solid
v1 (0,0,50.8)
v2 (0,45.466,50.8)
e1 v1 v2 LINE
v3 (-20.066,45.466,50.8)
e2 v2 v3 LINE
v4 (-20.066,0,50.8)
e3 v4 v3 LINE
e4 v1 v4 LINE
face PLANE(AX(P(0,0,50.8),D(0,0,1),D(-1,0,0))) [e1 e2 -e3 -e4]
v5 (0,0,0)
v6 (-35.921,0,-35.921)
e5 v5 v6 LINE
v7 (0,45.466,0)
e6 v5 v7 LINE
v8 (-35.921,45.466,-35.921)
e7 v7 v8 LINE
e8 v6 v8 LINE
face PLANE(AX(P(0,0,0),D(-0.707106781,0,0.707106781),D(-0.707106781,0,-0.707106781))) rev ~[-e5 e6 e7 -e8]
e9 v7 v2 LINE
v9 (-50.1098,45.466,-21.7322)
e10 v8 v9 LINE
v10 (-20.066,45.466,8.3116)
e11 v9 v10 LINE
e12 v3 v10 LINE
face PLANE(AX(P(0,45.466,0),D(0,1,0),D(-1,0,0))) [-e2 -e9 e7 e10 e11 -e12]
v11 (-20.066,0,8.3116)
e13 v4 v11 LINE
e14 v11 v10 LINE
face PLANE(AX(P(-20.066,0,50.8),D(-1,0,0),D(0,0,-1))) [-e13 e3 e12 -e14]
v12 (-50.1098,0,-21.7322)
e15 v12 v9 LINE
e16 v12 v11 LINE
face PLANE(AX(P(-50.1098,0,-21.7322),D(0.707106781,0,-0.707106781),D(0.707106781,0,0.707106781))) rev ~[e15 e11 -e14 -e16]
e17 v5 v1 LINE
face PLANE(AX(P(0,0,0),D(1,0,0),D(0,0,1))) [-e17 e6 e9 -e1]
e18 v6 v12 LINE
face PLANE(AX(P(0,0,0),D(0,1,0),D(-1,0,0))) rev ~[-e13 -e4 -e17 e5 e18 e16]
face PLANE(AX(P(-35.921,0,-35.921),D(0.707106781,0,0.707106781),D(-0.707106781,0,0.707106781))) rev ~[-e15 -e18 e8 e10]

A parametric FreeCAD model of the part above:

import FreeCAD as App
import Part
import Sketcher

V = App.Vector
Q = App.Units.Quantity


def add_polygon(sketch, points):
    """Adds a closed chain of lines whose ends are joined by coincident constraints."""
    first, n = sketch.GeometryCount, len(points)
    for a, b in zip(points, points[1:] + points[:1]):
        sketch.addGeometry(Part.LineSegment(App.Vector(*a, 0), App.Vector(*b, 0)), False)
    for i in range(n):
        sketch.addConstraint(Sketcher.Constraint("Coincident", first + i, 2, first + (i + 1) % n, 1))

doc = App.newDocument("Part")
body = doc.addObject("PartDesign::Body", "Body")

# Sketch on XZ plane
sketch1 = body.newObject("Sketcher::SketchObject", "Sketch")
sketch1.AttachmentSupport = (doc.getObject("XZ_Plane"), [""])
sketch1.MapMode = "FlatFace"
add_polygon(sketch1, [(0, 51), (0, 0), (-36, -36), (-50, -22), (-20, 8), (-20, 51)])  # lines 0-5
sketch1.addConstraint(Sketcher.Constraint("Vertical", 0))
sketch1.addConstraint(Sketcher.Constraint("Vertical", 4))
sketch1.addConstraint(Sketcher.Constraint("Horizontal", 5))
sketch1.addConstraint(Sketcher.Constraint("Coincident", 0, 2, -1, 1))
sketch1.addConstraint(Sketcher.Constraint("Perpendicular", 1, 2))
sketch1.addConstraint(Sketcher.Constraint("Perpendicular", 2, 3))
sketch1.addConstraint(Sketcher.Constraint("DistanceY", 0, 2, 0, 1, Q("2 in")))
sketch1.addConstraint(Sketcher.Constraint("Distance", 1, Q("2 in")))
sketch1.addConstraint(Sketcher.Constraint("Angle", 3, Q("45 deg")))
sketch1.addConstraint(Sketcher.Constraint("DistanceX", 5, 1, 5, 2, Q("0.79 in")))
sketch1.addConstraint(Sketcher.Constraint("Distance", 2, Q("0.79 in")))
pad1 = body.newObject("PartDesign::Pad", "Pad")
pad1.Profile = sketch1
pad1.Length = Q("1.79 in")
pad1.Reversed = True

doc.recompute()
